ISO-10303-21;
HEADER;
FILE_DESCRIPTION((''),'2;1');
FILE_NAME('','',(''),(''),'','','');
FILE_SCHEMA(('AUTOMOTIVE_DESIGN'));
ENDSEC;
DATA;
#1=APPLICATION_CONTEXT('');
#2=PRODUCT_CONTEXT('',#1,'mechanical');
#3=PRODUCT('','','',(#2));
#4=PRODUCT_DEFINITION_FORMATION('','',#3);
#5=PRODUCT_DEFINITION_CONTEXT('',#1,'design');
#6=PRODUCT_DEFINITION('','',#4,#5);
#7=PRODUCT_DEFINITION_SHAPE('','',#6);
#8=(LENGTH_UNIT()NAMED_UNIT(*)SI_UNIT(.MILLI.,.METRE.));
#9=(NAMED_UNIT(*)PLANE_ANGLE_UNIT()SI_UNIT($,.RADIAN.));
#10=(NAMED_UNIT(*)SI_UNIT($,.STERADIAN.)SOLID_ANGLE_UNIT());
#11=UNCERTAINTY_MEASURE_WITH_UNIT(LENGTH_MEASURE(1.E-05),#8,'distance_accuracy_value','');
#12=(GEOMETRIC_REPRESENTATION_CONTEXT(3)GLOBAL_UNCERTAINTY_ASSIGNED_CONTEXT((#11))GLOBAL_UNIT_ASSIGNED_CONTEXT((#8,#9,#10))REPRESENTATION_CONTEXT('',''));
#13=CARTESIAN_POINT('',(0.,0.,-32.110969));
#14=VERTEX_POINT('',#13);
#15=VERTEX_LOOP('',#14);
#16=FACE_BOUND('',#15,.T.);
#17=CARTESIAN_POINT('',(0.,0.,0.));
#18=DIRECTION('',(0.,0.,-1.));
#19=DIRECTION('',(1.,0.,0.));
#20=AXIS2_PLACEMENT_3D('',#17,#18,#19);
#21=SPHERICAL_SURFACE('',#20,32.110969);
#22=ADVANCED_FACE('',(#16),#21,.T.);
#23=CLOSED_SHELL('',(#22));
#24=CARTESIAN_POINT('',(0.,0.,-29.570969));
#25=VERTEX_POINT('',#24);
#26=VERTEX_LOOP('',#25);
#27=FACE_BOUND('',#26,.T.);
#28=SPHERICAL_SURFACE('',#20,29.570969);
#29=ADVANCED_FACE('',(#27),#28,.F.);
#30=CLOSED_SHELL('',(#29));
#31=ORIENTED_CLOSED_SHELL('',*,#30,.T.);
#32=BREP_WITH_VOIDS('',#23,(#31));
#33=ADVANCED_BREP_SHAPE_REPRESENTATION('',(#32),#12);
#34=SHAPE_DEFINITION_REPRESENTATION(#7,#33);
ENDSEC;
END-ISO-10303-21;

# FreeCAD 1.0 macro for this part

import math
import FreeCAD as App
import Part
import Sketcher
Q = App.Units.Quantity

doc = App.newDocument("Part")
body = doc.addObject("PartDesign::Body", "Body")

# Sketch on XZ plane
sketch1 = body.newObject("Sketcher::SketchObject", "Sketch")
sketch1.AttachmentSupport = (doc.getObject("XZ_Plane"), [""])
sketch1.MapMode = "FlatFace"
sketch1.addGeometry([
    Part.ArcOfCircle(Part.Circle(App.Vector(0, 0, 0), App.Vector(0, 0, 1), 29.6), math.radians(90), math.radians(270)),
    Part.LineSegment(App.Vector(0, -29.6, 0), App.Vector(0, -32.1, 0)),
    Part.ArcOfCircle(Part.Circle(App.Vector(0, 0, 0), App.Vector(0, 0, 1), 32.1), math.radians(90), math.radians(270)),
    Part.LineSegment(App.Vector(0, 32.1, 0), App.Vector(0, 29.6, 0)),
], False)
sketch1.addConstraint([
    Sketcher.Constraint("Coincident", 0, 2, 1, 1),
    Sketcher.Constraint("Coincident", 1, 2, 2, 2),
    Sketcher.Constraint("Coincident", 2, 1, 3, 1),
    Sketcher.Constraint("Coincident", 3, 2, 0, 1),
    Sketcher.Constraint("Vertical", 1),
    Sketcher.Constraint("Vertical", 3),
    Sketcher.Constraint("Coincident", 0, 3, -1, 1),
    Sketcher.Constraint("Coincident", 2, 3, -1, 1),
    Sketcher.Constraint("PointOnObject", 0, 2, -2),
    Sketcher.Constraint("PointOnObject", 2, 1, -2),
    Sketcher.Constraint("DistanceY", 1, 2, 1, 1, Q("0.1 in")),
    Sketcher.Constraint("Radius", 0, 29.570969),
])
revolution = body.newObject("PartDesign::Revolution", "Revolution")
revolution.Profile = sketch1
revolution.ReferenceAxis = (sketch1, ["V_Axis"])
revolution.Angle = 360

doc.recompute()
